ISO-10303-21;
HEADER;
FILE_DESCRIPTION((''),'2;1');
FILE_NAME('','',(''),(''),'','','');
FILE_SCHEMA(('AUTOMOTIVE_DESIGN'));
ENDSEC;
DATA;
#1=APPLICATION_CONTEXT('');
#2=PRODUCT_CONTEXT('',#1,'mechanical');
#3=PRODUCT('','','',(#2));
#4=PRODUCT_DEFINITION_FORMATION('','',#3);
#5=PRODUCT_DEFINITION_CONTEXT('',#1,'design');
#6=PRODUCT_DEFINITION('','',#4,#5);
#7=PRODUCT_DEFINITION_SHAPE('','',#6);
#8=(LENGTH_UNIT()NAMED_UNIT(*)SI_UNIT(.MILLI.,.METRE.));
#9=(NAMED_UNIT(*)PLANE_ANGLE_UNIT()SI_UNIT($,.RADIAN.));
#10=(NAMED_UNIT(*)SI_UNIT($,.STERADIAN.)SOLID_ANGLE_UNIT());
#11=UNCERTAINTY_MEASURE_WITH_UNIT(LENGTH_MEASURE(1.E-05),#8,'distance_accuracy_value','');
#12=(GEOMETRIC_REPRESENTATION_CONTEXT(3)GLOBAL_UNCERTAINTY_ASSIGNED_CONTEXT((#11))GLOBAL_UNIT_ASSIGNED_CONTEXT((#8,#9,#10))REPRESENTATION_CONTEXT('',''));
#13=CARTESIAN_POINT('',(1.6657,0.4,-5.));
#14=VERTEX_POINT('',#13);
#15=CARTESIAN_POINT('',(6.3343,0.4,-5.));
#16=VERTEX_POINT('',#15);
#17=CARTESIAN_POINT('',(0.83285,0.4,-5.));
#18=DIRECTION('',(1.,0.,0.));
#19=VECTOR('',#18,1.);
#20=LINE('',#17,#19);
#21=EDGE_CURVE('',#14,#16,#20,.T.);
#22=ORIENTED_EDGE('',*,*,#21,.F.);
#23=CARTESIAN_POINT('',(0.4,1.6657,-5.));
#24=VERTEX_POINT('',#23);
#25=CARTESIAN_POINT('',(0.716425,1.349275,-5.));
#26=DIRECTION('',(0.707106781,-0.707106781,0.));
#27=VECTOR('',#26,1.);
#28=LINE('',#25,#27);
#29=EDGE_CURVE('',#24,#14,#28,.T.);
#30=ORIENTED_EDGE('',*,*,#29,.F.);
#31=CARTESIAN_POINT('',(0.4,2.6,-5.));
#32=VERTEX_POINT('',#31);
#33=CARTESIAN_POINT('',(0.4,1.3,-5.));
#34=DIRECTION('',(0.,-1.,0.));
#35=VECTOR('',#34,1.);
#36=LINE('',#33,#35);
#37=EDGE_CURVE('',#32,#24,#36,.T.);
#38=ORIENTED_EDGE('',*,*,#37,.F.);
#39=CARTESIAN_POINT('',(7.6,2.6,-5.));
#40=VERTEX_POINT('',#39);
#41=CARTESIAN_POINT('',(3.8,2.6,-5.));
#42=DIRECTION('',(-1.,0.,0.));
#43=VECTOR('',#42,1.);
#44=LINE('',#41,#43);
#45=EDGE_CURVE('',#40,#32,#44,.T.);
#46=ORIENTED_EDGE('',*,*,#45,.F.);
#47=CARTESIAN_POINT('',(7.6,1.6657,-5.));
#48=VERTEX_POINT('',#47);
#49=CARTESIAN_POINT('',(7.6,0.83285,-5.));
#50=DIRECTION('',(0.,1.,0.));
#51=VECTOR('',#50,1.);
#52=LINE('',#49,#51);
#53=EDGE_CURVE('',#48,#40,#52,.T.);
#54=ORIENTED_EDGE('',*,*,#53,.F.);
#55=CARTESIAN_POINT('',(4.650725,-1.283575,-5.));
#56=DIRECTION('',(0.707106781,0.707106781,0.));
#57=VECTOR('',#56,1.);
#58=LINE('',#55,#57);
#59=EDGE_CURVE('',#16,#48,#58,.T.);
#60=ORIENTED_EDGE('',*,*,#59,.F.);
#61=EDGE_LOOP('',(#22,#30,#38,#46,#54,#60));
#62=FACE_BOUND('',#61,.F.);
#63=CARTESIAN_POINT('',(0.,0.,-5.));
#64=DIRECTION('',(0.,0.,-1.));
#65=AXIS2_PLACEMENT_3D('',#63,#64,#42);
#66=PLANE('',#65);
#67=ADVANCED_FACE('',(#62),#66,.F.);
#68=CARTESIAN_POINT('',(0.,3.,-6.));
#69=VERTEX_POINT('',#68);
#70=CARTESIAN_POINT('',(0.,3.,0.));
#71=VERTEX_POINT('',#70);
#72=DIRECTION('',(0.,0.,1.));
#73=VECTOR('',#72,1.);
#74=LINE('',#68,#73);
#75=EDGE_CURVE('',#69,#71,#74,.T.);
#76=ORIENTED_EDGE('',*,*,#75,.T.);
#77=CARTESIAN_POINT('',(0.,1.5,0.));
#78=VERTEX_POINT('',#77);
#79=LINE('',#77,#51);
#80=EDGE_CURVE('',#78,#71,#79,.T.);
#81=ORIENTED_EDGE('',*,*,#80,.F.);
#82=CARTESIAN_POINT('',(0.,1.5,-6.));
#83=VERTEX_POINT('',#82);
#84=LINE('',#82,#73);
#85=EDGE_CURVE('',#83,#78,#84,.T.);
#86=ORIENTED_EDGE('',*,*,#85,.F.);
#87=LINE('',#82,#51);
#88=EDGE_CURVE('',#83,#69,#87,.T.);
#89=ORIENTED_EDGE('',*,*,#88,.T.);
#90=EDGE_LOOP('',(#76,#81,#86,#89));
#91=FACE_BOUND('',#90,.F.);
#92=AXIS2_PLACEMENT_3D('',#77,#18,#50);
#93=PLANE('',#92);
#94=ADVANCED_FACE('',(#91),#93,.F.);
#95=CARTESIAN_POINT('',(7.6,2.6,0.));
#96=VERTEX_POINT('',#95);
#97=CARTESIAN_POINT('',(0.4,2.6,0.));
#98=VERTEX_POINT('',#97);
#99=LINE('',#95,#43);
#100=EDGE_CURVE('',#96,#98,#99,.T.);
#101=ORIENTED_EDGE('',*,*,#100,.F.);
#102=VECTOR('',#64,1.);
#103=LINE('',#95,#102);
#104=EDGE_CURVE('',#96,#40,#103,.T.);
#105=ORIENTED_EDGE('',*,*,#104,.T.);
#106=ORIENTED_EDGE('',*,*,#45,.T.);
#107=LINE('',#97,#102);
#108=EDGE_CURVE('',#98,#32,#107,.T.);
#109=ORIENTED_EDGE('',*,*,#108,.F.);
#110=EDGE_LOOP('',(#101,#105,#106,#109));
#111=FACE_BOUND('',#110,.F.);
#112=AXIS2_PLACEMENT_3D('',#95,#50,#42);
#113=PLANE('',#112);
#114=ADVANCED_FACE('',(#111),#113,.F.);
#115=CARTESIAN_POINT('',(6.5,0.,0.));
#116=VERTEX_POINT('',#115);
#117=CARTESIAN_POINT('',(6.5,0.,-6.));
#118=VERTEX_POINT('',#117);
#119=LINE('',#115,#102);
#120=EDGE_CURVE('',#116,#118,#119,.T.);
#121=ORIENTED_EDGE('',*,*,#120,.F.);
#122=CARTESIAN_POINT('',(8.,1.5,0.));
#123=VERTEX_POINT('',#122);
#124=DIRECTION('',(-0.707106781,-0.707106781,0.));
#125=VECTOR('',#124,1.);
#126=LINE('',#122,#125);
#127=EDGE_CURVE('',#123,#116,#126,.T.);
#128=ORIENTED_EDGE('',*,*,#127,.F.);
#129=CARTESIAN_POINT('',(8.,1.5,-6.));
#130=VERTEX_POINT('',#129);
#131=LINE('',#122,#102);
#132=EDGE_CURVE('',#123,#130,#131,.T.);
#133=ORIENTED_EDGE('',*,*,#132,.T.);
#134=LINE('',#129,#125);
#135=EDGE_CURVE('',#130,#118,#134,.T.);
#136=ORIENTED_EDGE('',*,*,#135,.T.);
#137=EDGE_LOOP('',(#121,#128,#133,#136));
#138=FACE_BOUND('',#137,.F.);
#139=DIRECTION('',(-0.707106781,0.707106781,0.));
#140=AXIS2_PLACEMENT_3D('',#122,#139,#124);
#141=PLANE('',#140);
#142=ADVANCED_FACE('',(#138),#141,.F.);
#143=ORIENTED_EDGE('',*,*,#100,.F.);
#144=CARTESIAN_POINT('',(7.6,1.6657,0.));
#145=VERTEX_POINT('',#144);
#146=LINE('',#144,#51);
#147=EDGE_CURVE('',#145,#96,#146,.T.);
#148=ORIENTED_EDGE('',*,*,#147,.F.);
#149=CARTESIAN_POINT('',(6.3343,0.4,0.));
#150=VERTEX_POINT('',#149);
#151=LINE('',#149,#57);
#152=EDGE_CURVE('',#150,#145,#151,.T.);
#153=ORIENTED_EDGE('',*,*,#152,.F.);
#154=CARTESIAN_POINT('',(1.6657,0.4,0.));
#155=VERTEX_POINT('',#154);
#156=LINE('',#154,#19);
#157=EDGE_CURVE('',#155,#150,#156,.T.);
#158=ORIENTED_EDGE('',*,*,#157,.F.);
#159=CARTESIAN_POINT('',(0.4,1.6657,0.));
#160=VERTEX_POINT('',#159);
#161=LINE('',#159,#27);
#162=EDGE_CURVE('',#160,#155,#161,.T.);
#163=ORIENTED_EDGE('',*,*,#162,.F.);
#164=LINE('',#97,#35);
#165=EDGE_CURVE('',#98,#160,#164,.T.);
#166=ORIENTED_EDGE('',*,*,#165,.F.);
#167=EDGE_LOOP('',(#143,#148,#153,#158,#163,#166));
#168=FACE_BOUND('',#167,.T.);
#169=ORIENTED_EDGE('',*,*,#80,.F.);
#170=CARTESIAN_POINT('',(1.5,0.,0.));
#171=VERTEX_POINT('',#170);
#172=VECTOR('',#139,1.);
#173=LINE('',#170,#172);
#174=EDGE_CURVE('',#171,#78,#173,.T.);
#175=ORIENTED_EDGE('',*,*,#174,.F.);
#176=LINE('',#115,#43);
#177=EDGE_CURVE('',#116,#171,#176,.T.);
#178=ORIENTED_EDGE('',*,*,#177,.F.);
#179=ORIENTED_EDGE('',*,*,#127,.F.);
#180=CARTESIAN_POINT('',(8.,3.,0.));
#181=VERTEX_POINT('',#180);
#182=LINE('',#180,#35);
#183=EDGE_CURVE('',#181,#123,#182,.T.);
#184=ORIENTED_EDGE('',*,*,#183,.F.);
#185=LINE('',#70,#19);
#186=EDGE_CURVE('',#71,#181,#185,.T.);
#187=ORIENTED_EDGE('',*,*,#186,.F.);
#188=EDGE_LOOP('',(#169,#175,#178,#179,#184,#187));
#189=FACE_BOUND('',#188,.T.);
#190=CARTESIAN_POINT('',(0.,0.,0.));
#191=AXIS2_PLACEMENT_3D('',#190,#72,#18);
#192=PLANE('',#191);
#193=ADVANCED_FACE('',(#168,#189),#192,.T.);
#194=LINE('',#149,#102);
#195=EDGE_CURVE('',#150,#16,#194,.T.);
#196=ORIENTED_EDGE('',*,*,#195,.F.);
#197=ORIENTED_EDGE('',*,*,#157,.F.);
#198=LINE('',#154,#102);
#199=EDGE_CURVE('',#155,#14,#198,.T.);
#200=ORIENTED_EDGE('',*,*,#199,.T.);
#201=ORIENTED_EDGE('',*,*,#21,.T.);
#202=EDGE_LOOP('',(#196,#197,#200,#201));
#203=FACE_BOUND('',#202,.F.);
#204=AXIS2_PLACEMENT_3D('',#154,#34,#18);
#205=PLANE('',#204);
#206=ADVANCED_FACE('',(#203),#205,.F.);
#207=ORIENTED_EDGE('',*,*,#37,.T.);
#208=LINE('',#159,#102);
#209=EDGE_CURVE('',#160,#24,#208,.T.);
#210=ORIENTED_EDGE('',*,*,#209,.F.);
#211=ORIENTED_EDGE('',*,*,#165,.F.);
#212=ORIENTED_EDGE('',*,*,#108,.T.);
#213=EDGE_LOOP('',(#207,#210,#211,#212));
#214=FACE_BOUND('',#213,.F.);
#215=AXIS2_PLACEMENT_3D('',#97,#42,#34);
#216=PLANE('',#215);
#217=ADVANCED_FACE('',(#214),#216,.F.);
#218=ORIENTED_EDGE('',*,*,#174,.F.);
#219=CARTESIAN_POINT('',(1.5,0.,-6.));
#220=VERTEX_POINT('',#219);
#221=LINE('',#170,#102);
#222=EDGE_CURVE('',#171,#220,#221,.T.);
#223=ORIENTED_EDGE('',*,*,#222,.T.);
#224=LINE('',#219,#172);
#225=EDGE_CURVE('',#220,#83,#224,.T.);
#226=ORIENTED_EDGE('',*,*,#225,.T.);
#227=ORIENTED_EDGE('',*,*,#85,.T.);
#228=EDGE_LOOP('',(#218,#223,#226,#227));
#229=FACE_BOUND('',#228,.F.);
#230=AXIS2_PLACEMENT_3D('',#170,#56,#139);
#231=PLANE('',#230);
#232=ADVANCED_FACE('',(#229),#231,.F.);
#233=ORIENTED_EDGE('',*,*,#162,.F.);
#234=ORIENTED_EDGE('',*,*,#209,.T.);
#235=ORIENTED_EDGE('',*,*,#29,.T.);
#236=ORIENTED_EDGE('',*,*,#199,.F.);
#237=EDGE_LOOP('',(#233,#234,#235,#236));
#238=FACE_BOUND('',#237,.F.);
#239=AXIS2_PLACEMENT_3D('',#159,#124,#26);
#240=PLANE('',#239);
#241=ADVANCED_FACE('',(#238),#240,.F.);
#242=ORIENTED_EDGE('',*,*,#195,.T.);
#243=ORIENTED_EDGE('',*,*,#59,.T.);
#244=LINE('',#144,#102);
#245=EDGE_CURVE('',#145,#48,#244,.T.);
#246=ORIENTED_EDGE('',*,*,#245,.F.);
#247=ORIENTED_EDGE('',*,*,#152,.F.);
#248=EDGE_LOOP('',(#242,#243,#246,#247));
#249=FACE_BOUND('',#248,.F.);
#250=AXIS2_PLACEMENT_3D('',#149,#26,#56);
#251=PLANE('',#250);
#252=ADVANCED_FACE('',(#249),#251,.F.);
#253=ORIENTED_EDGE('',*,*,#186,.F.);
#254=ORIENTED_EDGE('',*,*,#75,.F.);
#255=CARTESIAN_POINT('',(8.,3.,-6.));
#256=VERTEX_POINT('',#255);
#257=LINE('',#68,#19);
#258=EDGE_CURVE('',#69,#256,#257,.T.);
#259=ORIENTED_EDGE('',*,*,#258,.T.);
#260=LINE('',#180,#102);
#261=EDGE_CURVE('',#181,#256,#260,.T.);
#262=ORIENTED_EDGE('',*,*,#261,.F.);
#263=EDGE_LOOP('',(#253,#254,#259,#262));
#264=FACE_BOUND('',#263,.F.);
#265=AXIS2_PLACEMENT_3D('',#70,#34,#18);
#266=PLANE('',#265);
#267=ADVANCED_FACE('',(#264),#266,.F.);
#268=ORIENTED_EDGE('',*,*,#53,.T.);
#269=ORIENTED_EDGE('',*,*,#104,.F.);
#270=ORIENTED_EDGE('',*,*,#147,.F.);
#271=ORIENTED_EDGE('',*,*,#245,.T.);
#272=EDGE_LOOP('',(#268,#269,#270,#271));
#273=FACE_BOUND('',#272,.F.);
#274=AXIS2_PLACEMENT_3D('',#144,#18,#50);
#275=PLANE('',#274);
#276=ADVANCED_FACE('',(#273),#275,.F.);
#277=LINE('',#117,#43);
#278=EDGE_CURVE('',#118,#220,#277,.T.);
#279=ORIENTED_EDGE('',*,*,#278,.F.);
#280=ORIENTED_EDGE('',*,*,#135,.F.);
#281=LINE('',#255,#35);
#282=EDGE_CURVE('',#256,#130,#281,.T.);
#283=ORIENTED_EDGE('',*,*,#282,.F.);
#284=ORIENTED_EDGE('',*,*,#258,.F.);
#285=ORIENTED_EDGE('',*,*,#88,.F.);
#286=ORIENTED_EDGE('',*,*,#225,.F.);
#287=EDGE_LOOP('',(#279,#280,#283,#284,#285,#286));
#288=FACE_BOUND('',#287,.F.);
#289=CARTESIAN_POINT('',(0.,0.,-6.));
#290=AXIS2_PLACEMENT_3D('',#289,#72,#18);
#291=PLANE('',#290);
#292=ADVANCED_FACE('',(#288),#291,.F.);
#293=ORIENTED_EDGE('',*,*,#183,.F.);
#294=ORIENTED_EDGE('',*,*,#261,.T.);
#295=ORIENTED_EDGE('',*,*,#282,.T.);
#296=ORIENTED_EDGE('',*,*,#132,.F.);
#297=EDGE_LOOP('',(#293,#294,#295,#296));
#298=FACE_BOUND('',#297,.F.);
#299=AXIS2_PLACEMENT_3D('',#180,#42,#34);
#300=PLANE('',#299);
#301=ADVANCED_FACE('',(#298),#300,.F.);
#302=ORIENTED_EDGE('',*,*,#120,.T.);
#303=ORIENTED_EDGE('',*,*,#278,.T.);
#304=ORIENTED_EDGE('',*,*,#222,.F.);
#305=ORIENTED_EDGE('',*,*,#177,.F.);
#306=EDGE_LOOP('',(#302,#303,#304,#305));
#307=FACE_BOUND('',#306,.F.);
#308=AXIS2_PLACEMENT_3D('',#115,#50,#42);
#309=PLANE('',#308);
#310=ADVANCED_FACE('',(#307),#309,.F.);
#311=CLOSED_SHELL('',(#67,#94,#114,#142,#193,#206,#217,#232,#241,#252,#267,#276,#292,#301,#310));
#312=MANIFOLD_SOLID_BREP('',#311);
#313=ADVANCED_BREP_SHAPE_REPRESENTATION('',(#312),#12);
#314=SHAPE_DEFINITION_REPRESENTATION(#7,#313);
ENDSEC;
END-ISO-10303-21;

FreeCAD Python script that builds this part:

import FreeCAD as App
import Part
import Sketcher
from FreeCAD import Vector


def add_polygon(sketch, points):
    """Adds a closed chain of lines whose ends are joined by coincident constraints."""
    first, n = sketch.GeometryCount, len(points)
    for a, b in zip(points, points[1:] + points[:1]):
        sketch.addGeometry(Part.LineSegment(App.Vector(*a, 0), App.Vector(*b, 0)), False)
    for i in range(n):
        sketch.addConstraint(Sketcher.Constraint("Coincident", first + i, 2, first + (i + 1) % n, 1))

doc = App.newDocument("Part")
body = doc.addObject("PartDesign::Body", "Body")

sketch1 = doc.addObject("Sketcher::SketchObject", "Sketch")
body.addObject(sketch1)
sketch1.AttachmentSupport = (doc.XY_Plane, [""])
sketch1.MapMode = "FlatFace"
add_polygon(sketch1, [(8, 3), (0, 3), (0, 1.5), (1.5, 0), (6.5, 0), (8, 1.5)])
add_polygon(sketch1, [(1.6657, 0.4), (0.4, 1.6657), (0.4, 2.6), (7.6, 2.6), (7.6, 1.6657), (6.3343, 0.4)])
sketch1.addConstraint([
    Sketcher.Constraint("Horizontal", 0),
    Sketcher.Constraint("Vertical", 1),
    Sketcher.Constraint("Horizontal", 3),
    Sketcher.Constraint("Vertical", 5),
    Sketcher.Constraint("Vertical", 7),
    Sketcher.Constraint("Horizontal", 8),
    Sketcher.Constraint("Vertical", 9),
    Sketcher.Constraint("Horizontal", 11),
    Sketcher.Constraint("PointOnObject", 0, 2, -2),
    Sketcher.Constraint("PointOnObject", 2, 2, -1),
    Sketcher.Constraint("Perpendicular", 2, 4),
    Sketcher.Constraint("Perpendicular", 4, 6),
    Sketcher.Constraint("Perpendicular", 6, 10),
    Sketcher.Constraint("Horizontal", 1, 2, 4, 2),
    Sketcher.Constraint("Horizontal", 6, 2, 9, 2),
    Sketcher.Constraint("Equal", 2, 4),
    Sketcher.Constraint("DistanceX", 0, 2, 0, 1, 8.0),
    Sketcher.Constraint("DistanceX", 3, 1, 3, 2, 5.0),
    Sketcher.Constraint("DistanceY", 1, 2, 1, 1, 1.5),
    Sketcher.Constraint("DistanceX", -1, 1, 6, 2, 0.4),
    Sketcher.Constraint("DistanceY", -1, 1, 10, 2, 0.4),
    Sketcher.Constraint("DistanceY", 7, 2, 0, 2, 0.4),
    Sketcher.Constraint("DistanceX", 8, 2, 5, 2, 0.4),
    Sketcher.Constraint("Distance", 6, 1.79),
])
pad1 = doc.addObject("PartDesign::Pad", "Pad")
body.addObject(pad1)
pad1.Profile = sketch1
pad1.Length = 6
pad1.Reversed = True

sketch2 = doc.addObject("Sketcher::SketchObject", "Sketch001")
body.addObject(sketch2)
sketch2.AttachmentSupport = (doc.XY_Plane, [""])
sketch2.MapMode = "FlatFace"
sketch2.AttachmentOffset = App.Placement(Vector(0, 0, -6), App.Rotation())
add_polygon(sketch2, [(8, 1.5), (6.5, 0), (1.5, 0), (0, 1.5), (0, 3), (8, 3)])
sketch2.addConstraint([
    Sketcher.Constraint("Horizontal", 1),
    Sketcher.Constraint("Vertical", 3),
    Sketcher.Constraint("Horizontal", 4),
    Sketcher.Constraint("Vertical", 5),
    Sketcher.Constraint("PointOnObject", 0, 2, -1),
    Sketcher.Constraint("PointOnObject", 2, 2, -2),
    Sketcher.Constraint("Perpendicular", 0, 2),
    Sketcher.Constraint("Horizontal", 2, 2, 5, 2),
    Sketcher.Constraint("Equal", 0, 2),
    Sketcher.Constraint("DistanceX", 1, 2, 1, 1, 5.0),
    Sketcher.Constraint("DistanceX", 4, 1, 4, 2, 8.0),
    Sketcher.Constraint("DistanceY", 3, 1, 3, 2, 1.5),
])
pad2 = doc.addObject("PartDesign::Pad", "Pad001")
body.addObject(pad2)
pad2.Profile = sketch2
pad2.Length = 1

doc.recompute()
